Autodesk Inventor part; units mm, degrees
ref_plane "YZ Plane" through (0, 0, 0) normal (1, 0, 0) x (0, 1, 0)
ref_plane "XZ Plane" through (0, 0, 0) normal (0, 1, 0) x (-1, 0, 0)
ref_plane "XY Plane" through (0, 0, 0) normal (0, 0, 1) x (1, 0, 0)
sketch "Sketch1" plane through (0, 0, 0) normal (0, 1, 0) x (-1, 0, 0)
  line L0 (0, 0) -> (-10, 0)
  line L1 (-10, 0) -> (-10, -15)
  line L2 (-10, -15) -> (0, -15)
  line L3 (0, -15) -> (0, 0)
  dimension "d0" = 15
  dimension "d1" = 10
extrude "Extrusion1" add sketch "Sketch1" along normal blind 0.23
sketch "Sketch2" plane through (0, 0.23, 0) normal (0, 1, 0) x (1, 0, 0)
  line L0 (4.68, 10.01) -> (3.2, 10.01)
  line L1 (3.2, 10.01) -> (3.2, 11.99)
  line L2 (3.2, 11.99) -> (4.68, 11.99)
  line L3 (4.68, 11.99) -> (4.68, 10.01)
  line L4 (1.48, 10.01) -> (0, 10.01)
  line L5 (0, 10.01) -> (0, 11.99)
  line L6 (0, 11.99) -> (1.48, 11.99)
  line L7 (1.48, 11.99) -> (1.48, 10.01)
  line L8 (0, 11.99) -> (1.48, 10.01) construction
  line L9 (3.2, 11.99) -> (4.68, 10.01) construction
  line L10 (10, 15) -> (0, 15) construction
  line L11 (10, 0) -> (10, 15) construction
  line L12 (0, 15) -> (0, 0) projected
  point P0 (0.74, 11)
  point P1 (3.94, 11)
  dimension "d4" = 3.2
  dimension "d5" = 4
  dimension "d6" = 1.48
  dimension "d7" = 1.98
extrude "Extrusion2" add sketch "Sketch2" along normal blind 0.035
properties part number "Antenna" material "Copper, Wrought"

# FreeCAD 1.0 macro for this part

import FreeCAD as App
import Part
import Sketcher
from FreeCAD import Vector
Q = App.Units.Quantity

doc = App.newDocument("Part")
body = doc.addObject("PartDesign::Body", "Body")

# Sketch on XZ plane
sketch1 = body.newObject("Sketcher::SketchObject", "Sketch")
sketch1.AttachmentSupport = (doc.getObject("XZ_Plane"), [""])
sketch1.MapMode = "FlatFace"
sketch1.addGeometry([
    Part.LineSegment(Vector(0, -15, 0), Vector(0, 0, 0)),
    Part.LineSegment(Vector(0, 0, 0), Vector(10, 0, 0)),
    Part.LineSegment(Vector(10, 0, 0), Vector(10, -15, 0)),
    Part.LineSegment(Vector(10, -15, 0), Vector(0, -15, 0)),
], False)
sketch1.addConstraint([
    Sketcher.Constraint("Coincident", 0, 2, 1, 1),
    Sketcher.Constraint("Coincident", 1, 2, 2, 1),
    Sketcher.Constraint("Coincident", 2, 2, 3, 1),
    Sketcher.Constraint("Coincident", 3, 2, 0, 1),
    Sketcher.Constraint("Vertical", 0),
    Sketcher.Constraint("Horizontal", 1),
    Sketcher.Constraint("Vertical", 2),
    Sketcher.Constraint("Horizontal", 3),
    Sketcher.Constraint("Coincident", 0, 2, -1, 1),
    Sketcher.Constraint("DistanceX", 1, 1, 1, 2, Q("10 mm")),
    Sketcher.Constraint("DistanceY", 0, 1, 0, 2, Q("15 mm")),
])
pad1 = body.newObject("PartDesign::Pad", "Pad")
pad1.Profile = sketch1
pad1.Length = 0.23
pad1.Reversed = True

# Sketch on XZ plane
sketch2 = body.newObject("Sketcher::SketchObject", "Sketch001")
sketch2.AttachmentSupport = (doc.getObject("XZ_Plane"), [""])
sketch2.MapMode = "FlatFace"
sketch2.AttachmentOffset = App.Placement(Vector(0, 0, -0.23), App.Rotation())
sketch2.addGeometry([
    Part.LineSegment(Vector(3.2, -10, 0), Vector(4.7, -10, 0)),  # 0
    Part.LineSegment(Vector(4.7, -10, 0), Vector(4.7, -12, 0)),  # 1
    Part.LineSegment(Vector(4.7, -12, 0), Vector(3.2, -12, 0)),  # 2
    Part.LineSegment(Vector(3.2, -12, 0), Vector(3.2, -10, 0)),  # 3
    Part.LineSegment(Vector(0, -10, 0), Vector(1.5, -10, 0)),  # 4
    Part.LineSegment(Vector(1.5, -10, 0), Vector(1.5, -12, 0)),  # 5
    Part.LineSegment(Vector(1.5, -12, 0), Vector(0, -12, 0)),  # 6
    Part.LineSegment(Vector(0, -12, 0), Vector(0, -10, 0)),  # 7
], False)
sketch2.addConstraint([
    Sketcher.Constraint("Coincident", 0, 2, 1, 1),
    Sketcher.Constraint("Coincident", 1, 2, 2, 1),
    Sketcher.Constraint("Coincident", 2, 2, 3, 1),
    Sketcher.Constraint("Coincident", 3, 2, 0, 1),
    Sketcher.Constraint("Coincident", 4, 2, 5, 1),
    Sketcher.Constraint("Coincident", 5, 2, 6, 1),
    Sketcher.Constraint("Coincident", 6, 2, 7, 1),
    Sketcher.Constraint("Coincident", 7, 2, 4, 1),
    Sketcher.Constraint("Horizontal", 0),
    Sketcher.Constraint("Vertical", 1),
    Sketcher.Constraint("Horizontal", 2),
    Sketcher.Constraint("Vertical", 3),
    Sketcher.Constraint("Horizontal", 4),
    Sketcher.Constraint("Vertical", 5),
    Sketcher.Constraint("Horizontal", 6),
    Sketcher.Constraint("Vertical", 7),
    Sketcher.Constraint("PointOnObject", 6, 2, -2),
    Sketcher.Constraint("Horizontal", 3, 2, 4, 2),
    Sketcher.Constraint("Horizontal", 2, 2, 5, 2),
    Sketcher.Constraint("Equal", 2, 4),
    Sketcher.Constraint("DistanceX", 0, 1, 0, 2, Q("1.48 mm")),
    Sketcher.Constraint("DistanceY", 1, 2, 1, 1, Q("1.98 mm")),
    Sketcher.Constraint("DistanceX", -1, 1, 2, 2, Q("3.2 mm")),
    Sketcher.Constraint("DistanceY", 0, 2, -1, 1, Q("10.01 mm")),
])
pad2 = body.newObject("PartDesign::Pad", "Pad001")
pad2.Profile = sketch2
pad2.Length = 0.035
pad2.Reversed = True

doc.recompute()
